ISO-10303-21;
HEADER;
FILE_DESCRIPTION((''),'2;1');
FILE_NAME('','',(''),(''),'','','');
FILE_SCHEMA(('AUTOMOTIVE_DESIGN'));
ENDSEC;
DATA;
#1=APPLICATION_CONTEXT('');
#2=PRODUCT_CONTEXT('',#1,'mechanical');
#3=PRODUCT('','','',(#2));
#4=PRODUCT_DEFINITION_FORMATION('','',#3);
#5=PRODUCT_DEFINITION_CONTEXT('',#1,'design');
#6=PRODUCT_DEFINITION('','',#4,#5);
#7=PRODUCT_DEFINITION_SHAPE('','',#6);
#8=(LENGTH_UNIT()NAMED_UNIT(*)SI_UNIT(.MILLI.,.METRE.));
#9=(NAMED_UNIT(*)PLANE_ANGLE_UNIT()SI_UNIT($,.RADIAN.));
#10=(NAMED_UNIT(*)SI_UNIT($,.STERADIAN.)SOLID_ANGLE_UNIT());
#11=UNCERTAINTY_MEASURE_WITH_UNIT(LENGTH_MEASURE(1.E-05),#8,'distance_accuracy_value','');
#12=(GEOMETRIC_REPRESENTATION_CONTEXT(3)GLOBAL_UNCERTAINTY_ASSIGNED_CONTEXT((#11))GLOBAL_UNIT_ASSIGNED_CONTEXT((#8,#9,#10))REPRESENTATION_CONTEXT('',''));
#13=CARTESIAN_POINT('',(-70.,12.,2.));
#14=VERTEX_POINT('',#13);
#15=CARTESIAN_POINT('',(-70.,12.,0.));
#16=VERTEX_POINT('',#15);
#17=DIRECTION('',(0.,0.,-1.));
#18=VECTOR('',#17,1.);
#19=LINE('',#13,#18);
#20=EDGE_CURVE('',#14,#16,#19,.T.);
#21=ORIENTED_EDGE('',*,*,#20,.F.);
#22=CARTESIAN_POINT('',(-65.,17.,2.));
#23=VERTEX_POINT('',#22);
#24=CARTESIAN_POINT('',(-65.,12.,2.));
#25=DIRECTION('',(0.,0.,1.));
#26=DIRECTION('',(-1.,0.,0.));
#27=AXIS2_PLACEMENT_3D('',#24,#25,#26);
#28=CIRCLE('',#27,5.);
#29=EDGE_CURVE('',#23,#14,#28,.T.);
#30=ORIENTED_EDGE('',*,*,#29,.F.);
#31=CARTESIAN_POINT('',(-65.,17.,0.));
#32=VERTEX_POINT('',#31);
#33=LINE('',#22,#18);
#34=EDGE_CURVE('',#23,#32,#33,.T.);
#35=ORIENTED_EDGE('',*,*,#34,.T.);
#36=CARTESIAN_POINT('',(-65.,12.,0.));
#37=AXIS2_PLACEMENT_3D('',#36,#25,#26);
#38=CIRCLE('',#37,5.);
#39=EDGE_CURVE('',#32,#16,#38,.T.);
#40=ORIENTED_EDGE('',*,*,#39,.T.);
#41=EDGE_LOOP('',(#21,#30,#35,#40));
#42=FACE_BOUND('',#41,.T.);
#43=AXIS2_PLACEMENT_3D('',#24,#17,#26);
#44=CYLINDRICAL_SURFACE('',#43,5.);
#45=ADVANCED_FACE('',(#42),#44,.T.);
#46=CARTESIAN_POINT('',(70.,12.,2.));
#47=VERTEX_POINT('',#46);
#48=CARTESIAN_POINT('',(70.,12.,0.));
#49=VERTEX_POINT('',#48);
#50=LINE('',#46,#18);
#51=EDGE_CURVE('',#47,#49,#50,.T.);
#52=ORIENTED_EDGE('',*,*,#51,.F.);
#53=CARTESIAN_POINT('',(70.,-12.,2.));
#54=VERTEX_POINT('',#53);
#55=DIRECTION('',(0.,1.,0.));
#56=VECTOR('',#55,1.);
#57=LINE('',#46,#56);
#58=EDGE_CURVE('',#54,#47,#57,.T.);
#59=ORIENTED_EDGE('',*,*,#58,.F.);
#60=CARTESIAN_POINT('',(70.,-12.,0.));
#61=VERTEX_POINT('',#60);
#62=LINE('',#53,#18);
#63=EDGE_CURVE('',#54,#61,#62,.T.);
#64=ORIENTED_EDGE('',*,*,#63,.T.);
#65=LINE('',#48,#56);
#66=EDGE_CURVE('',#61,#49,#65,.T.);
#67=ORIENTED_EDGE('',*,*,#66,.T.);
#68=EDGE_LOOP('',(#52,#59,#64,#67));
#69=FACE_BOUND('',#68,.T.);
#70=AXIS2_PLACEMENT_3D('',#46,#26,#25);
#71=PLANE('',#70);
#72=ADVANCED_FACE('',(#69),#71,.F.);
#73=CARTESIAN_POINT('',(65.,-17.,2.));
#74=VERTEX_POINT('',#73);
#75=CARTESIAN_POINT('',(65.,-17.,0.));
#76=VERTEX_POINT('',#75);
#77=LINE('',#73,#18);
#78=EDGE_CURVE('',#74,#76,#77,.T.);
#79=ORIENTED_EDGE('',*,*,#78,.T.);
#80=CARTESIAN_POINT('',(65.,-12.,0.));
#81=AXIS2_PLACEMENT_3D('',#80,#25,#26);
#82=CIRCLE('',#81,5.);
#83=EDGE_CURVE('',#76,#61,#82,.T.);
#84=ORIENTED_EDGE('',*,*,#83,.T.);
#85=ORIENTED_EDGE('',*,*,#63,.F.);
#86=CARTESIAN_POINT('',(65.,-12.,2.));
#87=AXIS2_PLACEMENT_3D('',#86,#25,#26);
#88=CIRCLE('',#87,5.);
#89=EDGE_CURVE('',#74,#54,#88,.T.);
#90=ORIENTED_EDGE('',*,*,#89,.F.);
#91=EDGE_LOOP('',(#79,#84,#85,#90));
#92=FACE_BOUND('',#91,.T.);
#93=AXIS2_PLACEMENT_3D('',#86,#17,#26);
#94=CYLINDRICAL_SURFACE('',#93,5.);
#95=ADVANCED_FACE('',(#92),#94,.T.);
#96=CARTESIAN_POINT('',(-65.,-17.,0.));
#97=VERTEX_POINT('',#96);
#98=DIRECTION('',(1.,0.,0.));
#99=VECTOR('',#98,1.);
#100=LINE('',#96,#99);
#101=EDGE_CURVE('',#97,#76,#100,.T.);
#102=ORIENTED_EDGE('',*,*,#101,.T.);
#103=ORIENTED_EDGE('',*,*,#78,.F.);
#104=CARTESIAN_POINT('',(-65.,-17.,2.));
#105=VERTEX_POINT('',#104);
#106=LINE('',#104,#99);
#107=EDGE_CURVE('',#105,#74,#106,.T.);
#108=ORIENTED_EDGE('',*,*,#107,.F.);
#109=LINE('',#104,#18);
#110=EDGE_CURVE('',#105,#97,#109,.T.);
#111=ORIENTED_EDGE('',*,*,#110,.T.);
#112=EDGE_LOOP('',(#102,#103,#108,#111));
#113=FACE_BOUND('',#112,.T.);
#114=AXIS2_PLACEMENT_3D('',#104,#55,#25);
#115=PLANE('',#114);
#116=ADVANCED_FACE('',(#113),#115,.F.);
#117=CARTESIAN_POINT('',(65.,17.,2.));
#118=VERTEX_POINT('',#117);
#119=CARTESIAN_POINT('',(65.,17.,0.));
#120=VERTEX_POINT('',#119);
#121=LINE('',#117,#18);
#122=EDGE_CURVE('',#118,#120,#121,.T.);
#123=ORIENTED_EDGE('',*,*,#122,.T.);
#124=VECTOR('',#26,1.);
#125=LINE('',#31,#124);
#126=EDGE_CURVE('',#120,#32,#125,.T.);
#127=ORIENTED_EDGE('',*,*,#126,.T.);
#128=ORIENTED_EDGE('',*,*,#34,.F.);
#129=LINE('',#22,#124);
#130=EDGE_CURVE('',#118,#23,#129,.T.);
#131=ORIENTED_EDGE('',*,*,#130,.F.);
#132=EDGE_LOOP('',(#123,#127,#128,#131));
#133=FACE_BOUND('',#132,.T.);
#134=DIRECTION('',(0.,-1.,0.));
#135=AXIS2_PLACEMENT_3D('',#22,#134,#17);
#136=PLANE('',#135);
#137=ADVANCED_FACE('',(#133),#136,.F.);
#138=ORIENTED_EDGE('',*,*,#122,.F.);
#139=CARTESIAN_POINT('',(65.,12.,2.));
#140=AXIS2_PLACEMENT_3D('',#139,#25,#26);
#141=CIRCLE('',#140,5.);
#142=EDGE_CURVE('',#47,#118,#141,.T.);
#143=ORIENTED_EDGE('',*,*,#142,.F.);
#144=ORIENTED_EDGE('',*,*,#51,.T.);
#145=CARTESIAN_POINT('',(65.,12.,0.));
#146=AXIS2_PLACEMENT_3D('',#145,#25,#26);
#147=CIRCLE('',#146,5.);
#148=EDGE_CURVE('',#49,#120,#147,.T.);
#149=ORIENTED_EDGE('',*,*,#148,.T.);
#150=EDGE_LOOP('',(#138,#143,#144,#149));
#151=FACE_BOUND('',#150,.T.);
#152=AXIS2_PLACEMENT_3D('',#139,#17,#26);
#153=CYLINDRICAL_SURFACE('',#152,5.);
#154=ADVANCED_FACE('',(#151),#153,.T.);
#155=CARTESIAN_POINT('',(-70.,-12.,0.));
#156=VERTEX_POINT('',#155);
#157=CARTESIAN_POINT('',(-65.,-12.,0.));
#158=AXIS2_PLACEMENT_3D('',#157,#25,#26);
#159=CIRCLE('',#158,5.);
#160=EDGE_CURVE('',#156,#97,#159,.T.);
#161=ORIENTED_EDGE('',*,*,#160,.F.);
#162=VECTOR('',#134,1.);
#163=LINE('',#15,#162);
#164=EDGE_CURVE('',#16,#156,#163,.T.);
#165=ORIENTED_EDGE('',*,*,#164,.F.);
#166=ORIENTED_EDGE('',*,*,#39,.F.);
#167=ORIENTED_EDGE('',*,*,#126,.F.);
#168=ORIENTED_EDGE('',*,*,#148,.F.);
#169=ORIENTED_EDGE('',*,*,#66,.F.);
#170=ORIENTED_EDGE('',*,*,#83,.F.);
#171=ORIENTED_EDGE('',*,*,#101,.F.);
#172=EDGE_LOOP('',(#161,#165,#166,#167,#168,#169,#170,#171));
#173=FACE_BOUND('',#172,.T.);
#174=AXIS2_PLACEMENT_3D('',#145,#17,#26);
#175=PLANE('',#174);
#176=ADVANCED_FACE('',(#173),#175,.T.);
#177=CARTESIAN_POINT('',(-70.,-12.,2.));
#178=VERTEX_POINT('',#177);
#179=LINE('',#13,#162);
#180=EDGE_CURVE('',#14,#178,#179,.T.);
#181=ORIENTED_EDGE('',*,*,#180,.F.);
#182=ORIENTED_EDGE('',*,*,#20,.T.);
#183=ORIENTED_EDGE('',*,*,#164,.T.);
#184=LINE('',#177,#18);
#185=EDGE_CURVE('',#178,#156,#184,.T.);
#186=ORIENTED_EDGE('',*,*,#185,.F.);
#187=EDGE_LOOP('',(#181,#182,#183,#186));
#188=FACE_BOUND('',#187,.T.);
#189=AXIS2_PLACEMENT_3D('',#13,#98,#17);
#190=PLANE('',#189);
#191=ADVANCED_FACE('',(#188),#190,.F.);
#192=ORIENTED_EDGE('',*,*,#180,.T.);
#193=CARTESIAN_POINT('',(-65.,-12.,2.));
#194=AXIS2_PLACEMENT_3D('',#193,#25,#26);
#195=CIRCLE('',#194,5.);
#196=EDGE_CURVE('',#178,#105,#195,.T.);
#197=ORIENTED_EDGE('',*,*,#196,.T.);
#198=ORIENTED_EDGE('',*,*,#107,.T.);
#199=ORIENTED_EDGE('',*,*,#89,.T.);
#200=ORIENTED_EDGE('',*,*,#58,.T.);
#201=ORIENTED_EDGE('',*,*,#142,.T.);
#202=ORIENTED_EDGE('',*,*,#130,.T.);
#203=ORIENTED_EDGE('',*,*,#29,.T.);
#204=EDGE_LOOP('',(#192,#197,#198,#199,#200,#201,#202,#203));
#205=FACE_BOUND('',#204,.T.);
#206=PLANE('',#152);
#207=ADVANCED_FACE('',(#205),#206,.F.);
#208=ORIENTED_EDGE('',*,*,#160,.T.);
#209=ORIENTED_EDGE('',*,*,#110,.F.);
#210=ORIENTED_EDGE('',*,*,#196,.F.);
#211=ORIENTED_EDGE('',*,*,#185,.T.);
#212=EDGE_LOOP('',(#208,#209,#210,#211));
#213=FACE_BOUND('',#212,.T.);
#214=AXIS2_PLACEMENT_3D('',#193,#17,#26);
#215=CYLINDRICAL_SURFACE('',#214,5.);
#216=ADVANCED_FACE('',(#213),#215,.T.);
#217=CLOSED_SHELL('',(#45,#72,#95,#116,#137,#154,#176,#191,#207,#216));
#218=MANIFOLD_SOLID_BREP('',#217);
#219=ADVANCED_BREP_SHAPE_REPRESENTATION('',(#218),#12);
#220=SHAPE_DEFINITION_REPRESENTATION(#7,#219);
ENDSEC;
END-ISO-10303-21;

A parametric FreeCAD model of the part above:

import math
import FreeCAD as App
import Part
import Sketcher
from FreeCAD import Vector
Q = App.Units.Quantity

doc = App.newDocument("Part")
body = doc.addObject("PartDesign::Body", "Body")

sketch1 = body.newObject("Sketcher::SketchObject", "Sketch")
sketch1.AttachmentSupport = (doc.getObject("XY_Plane"), [""])
sketch1.MapMode = "FlatFace"
sketch1.addGeometry([
    Part.LineSegment(Vector(65, 17, 0), Vector(-65, 17, 0)),
    Part.ArcOfCircle(Part.Circle(Vector(-65, 12, 0), Vector(0, 0, 1), 5), math.radians(90), math.radians(180)),
    Part.LineSegment(Vector(-70, 12, 0), Vector(-70, -12, 0)),
    Part.ArcOfCircle(Part.Circle(Vector(-65, -12, 0), Vector(0, 0, 1), 5), math.radians(180), math.radians(270)),
    Part.LineSegment(Vector(-65, -17, 0), Vector(65, -17, 0)),
    Part.ArcOfCircle(Part.Circle(Vector(65, -12, 0), Vector(0, 0, 1), 5), math.radians(-90), math.radians(0)),
    Part.LineSegment(Vector(70, -12, 0), Vector(70, 12, 0)),
    Part.ArcOfCircle(Part.Circle(Vector(65, 12, 0), Vector(0, 0, 1), 5), math.radians(0), math.radians(90)),
], False)
sketch1.addConstraint([
    Sketcher.Constraint("Tangent", 0, 2, 1, 1),
    Sketcher.Constraint("Tangent", 1, 2, 2, 1),
    Sketcher.Constraint("Tangent", 2, 2, 3, 1),
    Sketcher.Constraint("Tangent", 3, 2, 4, 1),
    Sketcher.Constraint("Tangent", 4, 2, 5, 1),
    Sketcher.Constraint("Tangent", 5, 2, 6, 1),
    Sketcher.Constraint("Tangent", 6, 2, 7, 1),
    Sketcher.Constraint("Tangent", 7, 2, 0, 1),
    Sketcher.Constraint("Horizontal", 0),
    Sketcher.Constraint("Vertical", 2),
    Sketcher.Constraint("Horizontal", 4),
    Sketcher.Constraint("Vertical", 6),
    Sketcher.Constraint("Equal", 1, 3),
    Sketcher.Constraint("Equal", 3, 5),
    Sketcher.Constraint("Equal", 5, 7),
    Sketcher.Constraint("Symmetric", 1, 3, 5, 3, -1, 1),
    Sketcher.Constraint("Radius", 1, Q("5 mm")),
    Sketcher.Constraint("DistanceX", 0, 2, 0, 1, Q("130 mm")),
    Sketcher.Constraint("DistanceY", 2, 2, 2, 1, Q("24 mm")),
])
pad1 = body.newObject("PartDesign::Pad", "Pad")
pad1.Profile = sketch1
pad1.Length = 2

doc.recompute()
